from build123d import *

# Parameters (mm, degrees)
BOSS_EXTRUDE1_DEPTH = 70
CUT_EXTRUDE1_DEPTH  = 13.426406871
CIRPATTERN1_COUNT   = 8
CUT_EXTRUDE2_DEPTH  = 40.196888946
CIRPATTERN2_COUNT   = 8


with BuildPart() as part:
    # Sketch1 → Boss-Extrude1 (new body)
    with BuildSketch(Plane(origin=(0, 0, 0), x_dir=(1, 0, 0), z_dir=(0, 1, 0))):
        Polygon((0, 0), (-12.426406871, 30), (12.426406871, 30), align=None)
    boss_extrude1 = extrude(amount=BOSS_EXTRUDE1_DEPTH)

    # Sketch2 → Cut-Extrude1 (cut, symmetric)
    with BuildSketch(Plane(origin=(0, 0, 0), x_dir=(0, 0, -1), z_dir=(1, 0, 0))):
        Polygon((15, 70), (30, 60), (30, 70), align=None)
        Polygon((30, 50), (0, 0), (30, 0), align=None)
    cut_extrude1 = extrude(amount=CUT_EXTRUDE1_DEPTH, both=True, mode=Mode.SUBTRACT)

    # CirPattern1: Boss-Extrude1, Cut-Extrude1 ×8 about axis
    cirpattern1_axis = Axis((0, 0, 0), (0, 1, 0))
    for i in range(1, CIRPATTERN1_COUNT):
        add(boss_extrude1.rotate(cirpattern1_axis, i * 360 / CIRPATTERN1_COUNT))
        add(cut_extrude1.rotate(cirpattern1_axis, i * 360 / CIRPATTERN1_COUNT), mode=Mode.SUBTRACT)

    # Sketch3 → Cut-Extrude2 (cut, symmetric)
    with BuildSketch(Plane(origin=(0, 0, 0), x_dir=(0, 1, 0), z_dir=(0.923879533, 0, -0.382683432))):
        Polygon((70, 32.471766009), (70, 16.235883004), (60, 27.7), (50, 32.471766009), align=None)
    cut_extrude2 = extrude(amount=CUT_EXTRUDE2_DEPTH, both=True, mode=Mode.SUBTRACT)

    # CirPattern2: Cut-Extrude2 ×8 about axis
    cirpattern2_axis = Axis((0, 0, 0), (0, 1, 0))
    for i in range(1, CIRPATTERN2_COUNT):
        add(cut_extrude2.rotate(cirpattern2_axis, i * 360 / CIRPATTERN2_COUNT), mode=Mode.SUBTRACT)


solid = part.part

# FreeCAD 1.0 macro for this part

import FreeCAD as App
import Part
import Sketcher
from FreeCAD import Vector
Q = App.Units.Quantity

doc = App.newDocument("Part")
body = doc.addObject("PartDesign::Body", "Body")

# Sketch on XZ plane
sketch1 = doc.addObject("Sketcher::SketchObject", "Sketch")
body.addObject(sketch1)
sketch1.AttachmentSupport = (doc.XZ_Plane, [""])
sketch1.MapMode = "FlatFace"
sketch1.addGeometry([
    Part.LineSegment(Vector(-12, -30, 0), Vector(0, 0, 0)),
    Part.LineSegment(Vector(0, 0, 0), Vector(12, -30, 0)),
    Part.LineSegment(Vector(12, -30, 0), Vector(-12, -30, 0)),
], False)
sketch1.addConstraint([
    Sketcher.Constraint("Coincident", 0, 2, 1, 1),
    Sketcher.Constraint("Coincident", 1, 2, 2, 1),
    Sketcher.Constraint("Coincident", 2, 2, 0, 1),
    Sketcher.Constraint("Horizontal", 2),
    Sketcher.Constraint("Coincident", 0, 2, -1, 1),
    Sketcher.Constraint("Equal", 0, 1),
    Sketcher.Constraint("DistanceY", 1, 2, -1, 1, Q("30 mm")),
    Sketcher.Constraint("Angle", 0, Q("67.5 deg")),
])
pad1 = doc.addObject("PartDesign::Pad", "Pad")
body.addObject(pad1)
pad1.Profile = sketch1
pad1.Length = 70
pad1.Reversed = True

# Sketch on YZ plane
sketch2 = doc.addObject("Sketcher::SketchObject", "Sketch001")
body.addObject(sketch2)
sketch2.AttachmentSupport = (doc.YZ_Plane, [""])
sketch2.MapMode = "FlatFace"
sketch2.addGeometry([
    Part.LineSegment(Vector(70, -15, 0), Vector(60, -30, 0)),  # 0
    Part.LineSegment(Vector(60, -30, 0), Vector(70, -30, 0)),  # 1
    Part.LineSegment(Vector(70, -30, 0), Vector(70, -15, 0)),  # 2
    Part.LineSegment(Vector(50, -30, 0), Vector(0, 0, 0)),  # 3
    Part.LineSegment(Vector(0, 0, 0), Vector(0, -30, 0)),  # 4
    Part.LineSegment(Vector(0, -30, 0), Vector(50, -30, 0)),  # 5
], False)
sketch2.addConstraint([
    Sketcher.Constraint("Coincident", 0, 2, 1, 1),
    Sketcher.Constraint("Coincident", 1, 2, 2, 1),
    Sketcher.Constraint("Coincident", 2, 2, 0, 1),
    Sketcher.Constraint("Coincident", 3, 2, 4, 1),
    Sketcher.Constraint("Coincident", 4, 2, 5, 1),
    Sketcher.Constraint("Coincident", 5, 2, 3, 1),
    Sketcher.Constraint("Horizontal", 1),
    Sketcher.Constraint("Vertical", 2),
    Sketcher.Constraint("Vertical", 4),
    Sketcher.Constraint("Horizontal", 5),
    Sketcher.Constraint("Coincident", 3, 2, -1, 1),
    Sketcher.Constraint("Horizontal", 1, 2, 4, 2),
    Sketcher.Constraint("DistanceX", 1, 1, 1, 2, Q("10 mm")),
    Sketcher.Constraint("DistanceX", 5, 1, 5, 2, Q("50 mm")),
    Sketcher.Constraint("DistanceY", 2, 1, 2, 2, Q("15 mm")),
    Sketcher.Constraint("DistanceY", 4, 2, 4, 1, Q("30 mm")),
    Sketcher.Constraint("DistanceX", -1, 1, 0, 2, Q("60 mm")),
])
pocket1 = doc.addObject("PartDesign::Pocket", "Pocket")
body.addObject(pocket1)
pocket1.Profile = sketch2
pocket1.Length = 26.852814
pocket1.Midplane = True
doc.recompute()

polarpattern = doc.addObject("PartDesign::PolarPattern", "PolarPattern")
body.addObject(polarpattern)
polarpattern.Originals = [pad1, pocket1]
polarpattern.Axis = (doc.Y_Axis, [""])
polarpattern.Angle = 360
polarpattern.Occurrences = 8
body.Tip = polarpattern

# Sketch on an angled plane
sketch3 = doc.addObject("Sketcher::SketchObject", "Sketch002")
body.addObject(sketch3)
sketch3.Placement = App.Placement(Vector(0, 0, 0), App.Rotation(Vector(0, 1, 0), Vector(0.382683432, 0, 0.923879533), Vector(0.923879533, 0, -0.382683432), "ZXY"))
sketch3.addGeometry([
    Part.LineSegment(Vector(70, 16, 0), Vector(70, 32, 0)),
    Part.LineSegment(Vector(70, 32, 0), Vector(50, 32, 0)),
    Part.LineSegment(Vector(50, 32, 0), Vector(60, 28, 0)),
    Part.LineSegment(Vector(60, 28, 0), Vector(70, 16, 0)),
], False)
sketch3.addConstraint([
    Sketcher.Constraint("Coincident", 0, 2, 1, 1),
    Sketcher.Constraint("Coincident", 1, 2, 2, 1),
    Sketcher.Constraint("Coincident", 2, 2, 3, 1),
    Sketcher.Constraint("Coincident", 3, 2, 0, 1),
    Sketcher.Constraint("Vertical", 0),
    Sketcher.Constraint("Horizontal", 1),
    Sketcher.Constraint("DistanceX", 1, 2, 1, 1, Q("20 mm")),
    Sketcher.Constraint("DistanceX", -1, 1, 0, 2, Q("70 mm")),
    Sketcher.Constraint("DistanceX", -1, 1, 2, 2, Q("60 mm")),
    Sketcher.Constraint("DistanceY", -1, 1, 2, 2, Q("27.7 mm")),
    Sketcher.Constraint("Distance", 2, Q("11.080151 mm")),
    Sketcher.Constraint("Distance", 3, Q("15.212691 mm")),
])
pocket2 = doc.addObject("PartDesign::Pocket", "Pocket001")
body.addObject(pocket2)
pocket2.Profile = sketch3
pocket2.Length = 80.393778
pocket2.Midplane = True
doc.recompute()

polarpattern2 = doc.addObject("PartDesign::PolarPattern", "PolarPattern001")
body.addObject(polarpattern2)
polarpattern2.Originals = [pocket2]
polarpattern2.Axis = (doc.Y_Axis, [""])
polarpattern2.Angle = 360
polarpattern2.Occurrences = 8
body.Tip = polarpattern2

doc.recompute()
